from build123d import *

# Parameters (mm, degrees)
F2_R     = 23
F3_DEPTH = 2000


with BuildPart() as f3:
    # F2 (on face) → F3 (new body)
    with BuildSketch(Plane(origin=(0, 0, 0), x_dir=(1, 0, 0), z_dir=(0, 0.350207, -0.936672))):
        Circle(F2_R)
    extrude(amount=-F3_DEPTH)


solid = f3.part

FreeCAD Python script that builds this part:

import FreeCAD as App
import Part
import Sketcher

V = App.Vector
Q = App.Units.Quantity

doc = App.newDocument("Part")
body = doc.addObject("PartDesign::Body", "Body")

# Sketch on an angled plane
sketch1 = body.newObject("Sketcher::SketchObject", "Sketch")
sketch1.Placement = App.Placement(V(0, 0, 0), App.Rotation(V(1, 0, 0), V(0, -0.936672291, -0.350207109), V(0, 0.350207109, -0.936672291), "ZXY"))
sketch1.addGeometry(Part.Circle(V(0, 0, 0), V(0, 0, 1), 23), False)
sketch1.addConstraint(Sketcher.Constraint("Coincident", 0, 3, -1, 1))
sketch1.addConstraint(Sketcher.Constraint("Diameter", 0, Q("46 mm")))
pad1 = body.newObject("PartDesign::Pad", "Pad")
pad1.Profile = sketch1
pad1.Length = 2000
pad1.Reversed = True

doc.recompute()
